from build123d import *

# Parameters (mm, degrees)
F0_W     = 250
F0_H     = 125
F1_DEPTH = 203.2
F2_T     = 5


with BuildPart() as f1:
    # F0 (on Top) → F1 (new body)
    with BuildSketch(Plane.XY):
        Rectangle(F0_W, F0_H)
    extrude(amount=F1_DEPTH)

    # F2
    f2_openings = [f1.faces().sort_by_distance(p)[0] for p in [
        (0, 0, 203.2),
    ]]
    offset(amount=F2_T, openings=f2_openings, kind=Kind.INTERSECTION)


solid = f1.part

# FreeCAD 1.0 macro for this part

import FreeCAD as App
import Part
import Sketcher


def faces_at(feature, points):
    """Names of the faces that lie closest to the given points."""
    faces = feature.Shape.Faces
    near = lambda p: min(range(len(faces)), key=lambda i: faces[i].distToShape(Part.Vertex(*p))[0])
    return sorted({f"Face{near(p) + 1}" for p in points})


def add_polygon(sketch, points):
    """Adds a closed chain of lines whose ends are joined by coincident constraints."""
    first, n = sketch.GeometryCount, len(points)
    for a, b in zip(points, points[1:] + points[:1]):
        sketch.addGeometry(Part.LineSegment(App.Vector(*a, 0), App.Vector(*b, 0)), False)
    for i in range(n):
        sketch.addConstraint(Sketcher.Constraint("Coincident", first + i, 2, first + (i + 1) % n, 1))

doc = App.newDocument("Part")
body = doc.addObject("PartDesign::Body", "Body")

# Sketch on XY plane
sketch1 = body.newObject("Sketcher::SketchObject", "Sketch")
sketch1.AttachmentSupport = (doc.getObject("XY_Plane"), [""])
sketch1.MapMode = "FlatFace"
add_polygon(sketch1, [(-125, 62), (-125, -62), (125, -62), (125, 62)])  # lines 0-3
sketch1.addConstraint(Sketcher.Constraint("Vertical", 0))
sketch1.addConstraint(Sketcher.Constraint("Horizontal", 1))
sketch1.addConstraint(Sketcher.Constraint("Vertical", 2))
sketch1.addConstraint(Sketcher.Constraint("Horizontal", 3))
sketch1.addConstraint(Sketcher.Constraint("Symmetric", 0, 2, 2, 2, -1, 1))
sketch1.addConstraint(Sketcher.Constraint("DistanceX", 1, 1, 1, 2, 250.0))
sketch1.addConstraint(Sketcher.Constraint("DistanceY", 0, 2, 0, 1, 125.0))
pad1 = body.newObject("PartDesign::Pad", "Pad")
pad1.Profile = sketch1
pad1.Length = 203.2
doc.recompute()

thickness = body.newObject("PartDesign::Thickness", "Thickness")
thickness.Base = (pad1, faces_at(pad1, [(0, 0, 203.2)]))
thickness.Value = 5
thickness.Reversed = False
thickness.Join = "Intersection"

doc.recompute()
